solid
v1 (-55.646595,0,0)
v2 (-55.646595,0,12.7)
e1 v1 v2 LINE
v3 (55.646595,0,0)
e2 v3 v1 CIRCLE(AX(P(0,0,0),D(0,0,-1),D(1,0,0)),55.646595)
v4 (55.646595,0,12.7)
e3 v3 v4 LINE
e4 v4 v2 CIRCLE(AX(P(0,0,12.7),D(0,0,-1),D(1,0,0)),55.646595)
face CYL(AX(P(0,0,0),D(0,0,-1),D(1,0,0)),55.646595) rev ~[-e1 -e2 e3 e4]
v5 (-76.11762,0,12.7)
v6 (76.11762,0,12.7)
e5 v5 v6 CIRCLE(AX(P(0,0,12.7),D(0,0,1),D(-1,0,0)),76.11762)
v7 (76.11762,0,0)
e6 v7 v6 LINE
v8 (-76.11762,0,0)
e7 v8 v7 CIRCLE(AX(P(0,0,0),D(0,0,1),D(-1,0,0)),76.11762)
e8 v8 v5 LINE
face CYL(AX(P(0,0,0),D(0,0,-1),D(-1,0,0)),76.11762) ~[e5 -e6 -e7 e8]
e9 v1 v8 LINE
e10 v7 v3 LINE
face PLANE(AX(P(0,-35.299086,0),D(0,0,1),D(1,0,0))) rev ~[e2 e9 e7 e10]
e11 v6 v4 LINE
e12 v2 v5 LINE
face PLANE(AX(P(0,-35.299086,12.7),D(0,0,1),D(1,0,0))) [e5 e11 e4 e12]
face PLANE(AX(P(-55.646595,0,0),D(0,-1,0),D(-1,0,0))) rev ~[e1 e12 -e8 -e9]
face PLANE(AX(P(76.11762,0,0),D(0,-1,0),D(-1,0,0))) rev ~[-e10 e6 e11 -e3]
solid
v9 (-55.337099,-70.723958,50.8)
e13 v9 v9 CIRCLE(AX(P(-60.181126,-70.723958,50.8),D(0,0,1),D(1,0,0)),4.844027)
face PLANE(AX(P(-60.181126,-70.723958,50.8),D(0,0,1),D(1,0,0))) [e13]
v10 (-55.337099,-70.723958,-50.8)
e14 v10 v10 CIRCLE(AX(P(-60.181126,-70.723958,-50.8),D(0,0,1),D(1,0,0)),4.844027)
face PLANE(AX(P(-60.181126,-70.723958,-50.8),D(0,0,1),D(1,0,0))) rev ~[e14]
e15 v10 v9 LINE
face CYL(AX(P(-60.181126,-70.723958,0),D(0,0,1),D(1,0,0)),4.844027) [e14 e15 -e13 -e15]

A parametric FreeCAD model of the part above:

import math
import FreeCAD as App
import Part
import Sketcher
from FreeCAD import Vector
Q = App.Units.Quantity

doc = App.newDocument("Part")
params = doc.addObject("Spreadsheet::Sheet", "Params")
for row, (alias, value) in enumerate([
    ("pad1_length", "0.5 in"),
    ("pad2_length", "4 in"),
], start=1):
    params.set(f"A{row}", alias)
    params.set(f"B{row}", "=" + value)
    params.setAlias(f"B{row}", alias)

body = doc.addObject("PartDesign::Body", "Body")

sketch1 = doc.addObject("Sketcher::SketchObject", "Sketch")
body.addObject(sketch1)
sketch1.AttachmentSupport = (doc.XY_Plane, [""])
sketch1.MapMode = "FlatFace"
sketch1.addGeometry(Part.LineSegment(Vector(-56, 0, 0), Vector(-76, 0, 0)), False)
sketch1.addGeometry(Part.ArcOfCircle(Part.Circle(Vector(0, 0, 0), Vector(0, 0, 1), 76), math.radians(180), math.radians(360)), False)
sketch1.addGeometry(Part.LineSegment(Vector(76, 0, 0), Vector(56, 0, 0)), False)
sketch1.addGeometry(Part.ArcOfCircle(Part.Circle(Vector(0, 0, 0), Vector(0, 0, 1), 56), math.radians(180), math.radians(360)), False)
sketch1.addConstraint(Sketcher.Constraint("Coincident", 0, 2, 1, 1))
sketch1.addConstraint(Sketcher.Constraint("Coincident", 1, 2, 2, 1))
sketch1.addConstraint(Sketcher.Constraint("Coincident", 2, 2, 3, 2))
sketch1.addConstraint(Sketcher.Constraint("Coincident", 3, 1, 0, 1))
sketch1.addConstraint(Sketcher.Constraint("Horizontal", 0))
sketch1.addConstraint(Sketcher.Constraint("Horizontal", 2))
sketch1.addConstraint(Sketcher.Constraint("Coincident", 1, 3, -1, 1))
sketch1.addConstraint(Sketcher.Constraint("Coincident", 3, 3, -1, 1))
sketch1.addConstraint(Sketcher.Constraint("PointOnObject", 0, 2, -1))
sketch1.addConstraint(Sketcher.Constraint("PointOnObject", 1, 2, -1))
sketch1.addConstraint(Sketcher.Constraint("Radius", 1, Q("76.11762 mm")))
sketch1.addConstraint(Sketcher.Constraint("Radius", 3, Q("55.646595 mm")))
pad1 = doc.addObject("PartDesign::Pad", "Pad")
body.addObject(pad1)
pad1.Profile = sketch1
pad1.setExpression("Length", "Params.pad1_length")
body2 = doc.addObject("PartDesign::Body", "Body001")

sketch2 = doc.addObject("Sketcher::SketchObject", "Sketch001")
body2.addObject(sketch2)
sketch2.AttachmentSupport = (doc.getObject("XY_Plane001"), [""])
sketch2.MapMode = "FlatFace"
sketch2.addGeometry(Part.Circle(Vector(-60.2, -70.7, 0), Vector(0, 0, 1), 4.8), False)
sketch2.addConstraint(Sketcher.Constraint("Diameter", 0, Q("9.688054 mm")))
sketch2.addConstraint(Sketcher.Constraint("DistanceX", 0, 3, -1, 1, Q("60.181126 mm")))
sketch2.addConstraint(Sketcher.Constraint("DistanceY", 0, 3, -1, 1, Q("70.723958 mm")))
pad2 = doc.addObject("PartDesign::Pad", "Pad001")
body2.addObject(pad2)
pad2.Profile = sketch2
pad2.setExpression("Length", "Params.pad2_length")
pad2.Midplane = True

doc.recompute()
